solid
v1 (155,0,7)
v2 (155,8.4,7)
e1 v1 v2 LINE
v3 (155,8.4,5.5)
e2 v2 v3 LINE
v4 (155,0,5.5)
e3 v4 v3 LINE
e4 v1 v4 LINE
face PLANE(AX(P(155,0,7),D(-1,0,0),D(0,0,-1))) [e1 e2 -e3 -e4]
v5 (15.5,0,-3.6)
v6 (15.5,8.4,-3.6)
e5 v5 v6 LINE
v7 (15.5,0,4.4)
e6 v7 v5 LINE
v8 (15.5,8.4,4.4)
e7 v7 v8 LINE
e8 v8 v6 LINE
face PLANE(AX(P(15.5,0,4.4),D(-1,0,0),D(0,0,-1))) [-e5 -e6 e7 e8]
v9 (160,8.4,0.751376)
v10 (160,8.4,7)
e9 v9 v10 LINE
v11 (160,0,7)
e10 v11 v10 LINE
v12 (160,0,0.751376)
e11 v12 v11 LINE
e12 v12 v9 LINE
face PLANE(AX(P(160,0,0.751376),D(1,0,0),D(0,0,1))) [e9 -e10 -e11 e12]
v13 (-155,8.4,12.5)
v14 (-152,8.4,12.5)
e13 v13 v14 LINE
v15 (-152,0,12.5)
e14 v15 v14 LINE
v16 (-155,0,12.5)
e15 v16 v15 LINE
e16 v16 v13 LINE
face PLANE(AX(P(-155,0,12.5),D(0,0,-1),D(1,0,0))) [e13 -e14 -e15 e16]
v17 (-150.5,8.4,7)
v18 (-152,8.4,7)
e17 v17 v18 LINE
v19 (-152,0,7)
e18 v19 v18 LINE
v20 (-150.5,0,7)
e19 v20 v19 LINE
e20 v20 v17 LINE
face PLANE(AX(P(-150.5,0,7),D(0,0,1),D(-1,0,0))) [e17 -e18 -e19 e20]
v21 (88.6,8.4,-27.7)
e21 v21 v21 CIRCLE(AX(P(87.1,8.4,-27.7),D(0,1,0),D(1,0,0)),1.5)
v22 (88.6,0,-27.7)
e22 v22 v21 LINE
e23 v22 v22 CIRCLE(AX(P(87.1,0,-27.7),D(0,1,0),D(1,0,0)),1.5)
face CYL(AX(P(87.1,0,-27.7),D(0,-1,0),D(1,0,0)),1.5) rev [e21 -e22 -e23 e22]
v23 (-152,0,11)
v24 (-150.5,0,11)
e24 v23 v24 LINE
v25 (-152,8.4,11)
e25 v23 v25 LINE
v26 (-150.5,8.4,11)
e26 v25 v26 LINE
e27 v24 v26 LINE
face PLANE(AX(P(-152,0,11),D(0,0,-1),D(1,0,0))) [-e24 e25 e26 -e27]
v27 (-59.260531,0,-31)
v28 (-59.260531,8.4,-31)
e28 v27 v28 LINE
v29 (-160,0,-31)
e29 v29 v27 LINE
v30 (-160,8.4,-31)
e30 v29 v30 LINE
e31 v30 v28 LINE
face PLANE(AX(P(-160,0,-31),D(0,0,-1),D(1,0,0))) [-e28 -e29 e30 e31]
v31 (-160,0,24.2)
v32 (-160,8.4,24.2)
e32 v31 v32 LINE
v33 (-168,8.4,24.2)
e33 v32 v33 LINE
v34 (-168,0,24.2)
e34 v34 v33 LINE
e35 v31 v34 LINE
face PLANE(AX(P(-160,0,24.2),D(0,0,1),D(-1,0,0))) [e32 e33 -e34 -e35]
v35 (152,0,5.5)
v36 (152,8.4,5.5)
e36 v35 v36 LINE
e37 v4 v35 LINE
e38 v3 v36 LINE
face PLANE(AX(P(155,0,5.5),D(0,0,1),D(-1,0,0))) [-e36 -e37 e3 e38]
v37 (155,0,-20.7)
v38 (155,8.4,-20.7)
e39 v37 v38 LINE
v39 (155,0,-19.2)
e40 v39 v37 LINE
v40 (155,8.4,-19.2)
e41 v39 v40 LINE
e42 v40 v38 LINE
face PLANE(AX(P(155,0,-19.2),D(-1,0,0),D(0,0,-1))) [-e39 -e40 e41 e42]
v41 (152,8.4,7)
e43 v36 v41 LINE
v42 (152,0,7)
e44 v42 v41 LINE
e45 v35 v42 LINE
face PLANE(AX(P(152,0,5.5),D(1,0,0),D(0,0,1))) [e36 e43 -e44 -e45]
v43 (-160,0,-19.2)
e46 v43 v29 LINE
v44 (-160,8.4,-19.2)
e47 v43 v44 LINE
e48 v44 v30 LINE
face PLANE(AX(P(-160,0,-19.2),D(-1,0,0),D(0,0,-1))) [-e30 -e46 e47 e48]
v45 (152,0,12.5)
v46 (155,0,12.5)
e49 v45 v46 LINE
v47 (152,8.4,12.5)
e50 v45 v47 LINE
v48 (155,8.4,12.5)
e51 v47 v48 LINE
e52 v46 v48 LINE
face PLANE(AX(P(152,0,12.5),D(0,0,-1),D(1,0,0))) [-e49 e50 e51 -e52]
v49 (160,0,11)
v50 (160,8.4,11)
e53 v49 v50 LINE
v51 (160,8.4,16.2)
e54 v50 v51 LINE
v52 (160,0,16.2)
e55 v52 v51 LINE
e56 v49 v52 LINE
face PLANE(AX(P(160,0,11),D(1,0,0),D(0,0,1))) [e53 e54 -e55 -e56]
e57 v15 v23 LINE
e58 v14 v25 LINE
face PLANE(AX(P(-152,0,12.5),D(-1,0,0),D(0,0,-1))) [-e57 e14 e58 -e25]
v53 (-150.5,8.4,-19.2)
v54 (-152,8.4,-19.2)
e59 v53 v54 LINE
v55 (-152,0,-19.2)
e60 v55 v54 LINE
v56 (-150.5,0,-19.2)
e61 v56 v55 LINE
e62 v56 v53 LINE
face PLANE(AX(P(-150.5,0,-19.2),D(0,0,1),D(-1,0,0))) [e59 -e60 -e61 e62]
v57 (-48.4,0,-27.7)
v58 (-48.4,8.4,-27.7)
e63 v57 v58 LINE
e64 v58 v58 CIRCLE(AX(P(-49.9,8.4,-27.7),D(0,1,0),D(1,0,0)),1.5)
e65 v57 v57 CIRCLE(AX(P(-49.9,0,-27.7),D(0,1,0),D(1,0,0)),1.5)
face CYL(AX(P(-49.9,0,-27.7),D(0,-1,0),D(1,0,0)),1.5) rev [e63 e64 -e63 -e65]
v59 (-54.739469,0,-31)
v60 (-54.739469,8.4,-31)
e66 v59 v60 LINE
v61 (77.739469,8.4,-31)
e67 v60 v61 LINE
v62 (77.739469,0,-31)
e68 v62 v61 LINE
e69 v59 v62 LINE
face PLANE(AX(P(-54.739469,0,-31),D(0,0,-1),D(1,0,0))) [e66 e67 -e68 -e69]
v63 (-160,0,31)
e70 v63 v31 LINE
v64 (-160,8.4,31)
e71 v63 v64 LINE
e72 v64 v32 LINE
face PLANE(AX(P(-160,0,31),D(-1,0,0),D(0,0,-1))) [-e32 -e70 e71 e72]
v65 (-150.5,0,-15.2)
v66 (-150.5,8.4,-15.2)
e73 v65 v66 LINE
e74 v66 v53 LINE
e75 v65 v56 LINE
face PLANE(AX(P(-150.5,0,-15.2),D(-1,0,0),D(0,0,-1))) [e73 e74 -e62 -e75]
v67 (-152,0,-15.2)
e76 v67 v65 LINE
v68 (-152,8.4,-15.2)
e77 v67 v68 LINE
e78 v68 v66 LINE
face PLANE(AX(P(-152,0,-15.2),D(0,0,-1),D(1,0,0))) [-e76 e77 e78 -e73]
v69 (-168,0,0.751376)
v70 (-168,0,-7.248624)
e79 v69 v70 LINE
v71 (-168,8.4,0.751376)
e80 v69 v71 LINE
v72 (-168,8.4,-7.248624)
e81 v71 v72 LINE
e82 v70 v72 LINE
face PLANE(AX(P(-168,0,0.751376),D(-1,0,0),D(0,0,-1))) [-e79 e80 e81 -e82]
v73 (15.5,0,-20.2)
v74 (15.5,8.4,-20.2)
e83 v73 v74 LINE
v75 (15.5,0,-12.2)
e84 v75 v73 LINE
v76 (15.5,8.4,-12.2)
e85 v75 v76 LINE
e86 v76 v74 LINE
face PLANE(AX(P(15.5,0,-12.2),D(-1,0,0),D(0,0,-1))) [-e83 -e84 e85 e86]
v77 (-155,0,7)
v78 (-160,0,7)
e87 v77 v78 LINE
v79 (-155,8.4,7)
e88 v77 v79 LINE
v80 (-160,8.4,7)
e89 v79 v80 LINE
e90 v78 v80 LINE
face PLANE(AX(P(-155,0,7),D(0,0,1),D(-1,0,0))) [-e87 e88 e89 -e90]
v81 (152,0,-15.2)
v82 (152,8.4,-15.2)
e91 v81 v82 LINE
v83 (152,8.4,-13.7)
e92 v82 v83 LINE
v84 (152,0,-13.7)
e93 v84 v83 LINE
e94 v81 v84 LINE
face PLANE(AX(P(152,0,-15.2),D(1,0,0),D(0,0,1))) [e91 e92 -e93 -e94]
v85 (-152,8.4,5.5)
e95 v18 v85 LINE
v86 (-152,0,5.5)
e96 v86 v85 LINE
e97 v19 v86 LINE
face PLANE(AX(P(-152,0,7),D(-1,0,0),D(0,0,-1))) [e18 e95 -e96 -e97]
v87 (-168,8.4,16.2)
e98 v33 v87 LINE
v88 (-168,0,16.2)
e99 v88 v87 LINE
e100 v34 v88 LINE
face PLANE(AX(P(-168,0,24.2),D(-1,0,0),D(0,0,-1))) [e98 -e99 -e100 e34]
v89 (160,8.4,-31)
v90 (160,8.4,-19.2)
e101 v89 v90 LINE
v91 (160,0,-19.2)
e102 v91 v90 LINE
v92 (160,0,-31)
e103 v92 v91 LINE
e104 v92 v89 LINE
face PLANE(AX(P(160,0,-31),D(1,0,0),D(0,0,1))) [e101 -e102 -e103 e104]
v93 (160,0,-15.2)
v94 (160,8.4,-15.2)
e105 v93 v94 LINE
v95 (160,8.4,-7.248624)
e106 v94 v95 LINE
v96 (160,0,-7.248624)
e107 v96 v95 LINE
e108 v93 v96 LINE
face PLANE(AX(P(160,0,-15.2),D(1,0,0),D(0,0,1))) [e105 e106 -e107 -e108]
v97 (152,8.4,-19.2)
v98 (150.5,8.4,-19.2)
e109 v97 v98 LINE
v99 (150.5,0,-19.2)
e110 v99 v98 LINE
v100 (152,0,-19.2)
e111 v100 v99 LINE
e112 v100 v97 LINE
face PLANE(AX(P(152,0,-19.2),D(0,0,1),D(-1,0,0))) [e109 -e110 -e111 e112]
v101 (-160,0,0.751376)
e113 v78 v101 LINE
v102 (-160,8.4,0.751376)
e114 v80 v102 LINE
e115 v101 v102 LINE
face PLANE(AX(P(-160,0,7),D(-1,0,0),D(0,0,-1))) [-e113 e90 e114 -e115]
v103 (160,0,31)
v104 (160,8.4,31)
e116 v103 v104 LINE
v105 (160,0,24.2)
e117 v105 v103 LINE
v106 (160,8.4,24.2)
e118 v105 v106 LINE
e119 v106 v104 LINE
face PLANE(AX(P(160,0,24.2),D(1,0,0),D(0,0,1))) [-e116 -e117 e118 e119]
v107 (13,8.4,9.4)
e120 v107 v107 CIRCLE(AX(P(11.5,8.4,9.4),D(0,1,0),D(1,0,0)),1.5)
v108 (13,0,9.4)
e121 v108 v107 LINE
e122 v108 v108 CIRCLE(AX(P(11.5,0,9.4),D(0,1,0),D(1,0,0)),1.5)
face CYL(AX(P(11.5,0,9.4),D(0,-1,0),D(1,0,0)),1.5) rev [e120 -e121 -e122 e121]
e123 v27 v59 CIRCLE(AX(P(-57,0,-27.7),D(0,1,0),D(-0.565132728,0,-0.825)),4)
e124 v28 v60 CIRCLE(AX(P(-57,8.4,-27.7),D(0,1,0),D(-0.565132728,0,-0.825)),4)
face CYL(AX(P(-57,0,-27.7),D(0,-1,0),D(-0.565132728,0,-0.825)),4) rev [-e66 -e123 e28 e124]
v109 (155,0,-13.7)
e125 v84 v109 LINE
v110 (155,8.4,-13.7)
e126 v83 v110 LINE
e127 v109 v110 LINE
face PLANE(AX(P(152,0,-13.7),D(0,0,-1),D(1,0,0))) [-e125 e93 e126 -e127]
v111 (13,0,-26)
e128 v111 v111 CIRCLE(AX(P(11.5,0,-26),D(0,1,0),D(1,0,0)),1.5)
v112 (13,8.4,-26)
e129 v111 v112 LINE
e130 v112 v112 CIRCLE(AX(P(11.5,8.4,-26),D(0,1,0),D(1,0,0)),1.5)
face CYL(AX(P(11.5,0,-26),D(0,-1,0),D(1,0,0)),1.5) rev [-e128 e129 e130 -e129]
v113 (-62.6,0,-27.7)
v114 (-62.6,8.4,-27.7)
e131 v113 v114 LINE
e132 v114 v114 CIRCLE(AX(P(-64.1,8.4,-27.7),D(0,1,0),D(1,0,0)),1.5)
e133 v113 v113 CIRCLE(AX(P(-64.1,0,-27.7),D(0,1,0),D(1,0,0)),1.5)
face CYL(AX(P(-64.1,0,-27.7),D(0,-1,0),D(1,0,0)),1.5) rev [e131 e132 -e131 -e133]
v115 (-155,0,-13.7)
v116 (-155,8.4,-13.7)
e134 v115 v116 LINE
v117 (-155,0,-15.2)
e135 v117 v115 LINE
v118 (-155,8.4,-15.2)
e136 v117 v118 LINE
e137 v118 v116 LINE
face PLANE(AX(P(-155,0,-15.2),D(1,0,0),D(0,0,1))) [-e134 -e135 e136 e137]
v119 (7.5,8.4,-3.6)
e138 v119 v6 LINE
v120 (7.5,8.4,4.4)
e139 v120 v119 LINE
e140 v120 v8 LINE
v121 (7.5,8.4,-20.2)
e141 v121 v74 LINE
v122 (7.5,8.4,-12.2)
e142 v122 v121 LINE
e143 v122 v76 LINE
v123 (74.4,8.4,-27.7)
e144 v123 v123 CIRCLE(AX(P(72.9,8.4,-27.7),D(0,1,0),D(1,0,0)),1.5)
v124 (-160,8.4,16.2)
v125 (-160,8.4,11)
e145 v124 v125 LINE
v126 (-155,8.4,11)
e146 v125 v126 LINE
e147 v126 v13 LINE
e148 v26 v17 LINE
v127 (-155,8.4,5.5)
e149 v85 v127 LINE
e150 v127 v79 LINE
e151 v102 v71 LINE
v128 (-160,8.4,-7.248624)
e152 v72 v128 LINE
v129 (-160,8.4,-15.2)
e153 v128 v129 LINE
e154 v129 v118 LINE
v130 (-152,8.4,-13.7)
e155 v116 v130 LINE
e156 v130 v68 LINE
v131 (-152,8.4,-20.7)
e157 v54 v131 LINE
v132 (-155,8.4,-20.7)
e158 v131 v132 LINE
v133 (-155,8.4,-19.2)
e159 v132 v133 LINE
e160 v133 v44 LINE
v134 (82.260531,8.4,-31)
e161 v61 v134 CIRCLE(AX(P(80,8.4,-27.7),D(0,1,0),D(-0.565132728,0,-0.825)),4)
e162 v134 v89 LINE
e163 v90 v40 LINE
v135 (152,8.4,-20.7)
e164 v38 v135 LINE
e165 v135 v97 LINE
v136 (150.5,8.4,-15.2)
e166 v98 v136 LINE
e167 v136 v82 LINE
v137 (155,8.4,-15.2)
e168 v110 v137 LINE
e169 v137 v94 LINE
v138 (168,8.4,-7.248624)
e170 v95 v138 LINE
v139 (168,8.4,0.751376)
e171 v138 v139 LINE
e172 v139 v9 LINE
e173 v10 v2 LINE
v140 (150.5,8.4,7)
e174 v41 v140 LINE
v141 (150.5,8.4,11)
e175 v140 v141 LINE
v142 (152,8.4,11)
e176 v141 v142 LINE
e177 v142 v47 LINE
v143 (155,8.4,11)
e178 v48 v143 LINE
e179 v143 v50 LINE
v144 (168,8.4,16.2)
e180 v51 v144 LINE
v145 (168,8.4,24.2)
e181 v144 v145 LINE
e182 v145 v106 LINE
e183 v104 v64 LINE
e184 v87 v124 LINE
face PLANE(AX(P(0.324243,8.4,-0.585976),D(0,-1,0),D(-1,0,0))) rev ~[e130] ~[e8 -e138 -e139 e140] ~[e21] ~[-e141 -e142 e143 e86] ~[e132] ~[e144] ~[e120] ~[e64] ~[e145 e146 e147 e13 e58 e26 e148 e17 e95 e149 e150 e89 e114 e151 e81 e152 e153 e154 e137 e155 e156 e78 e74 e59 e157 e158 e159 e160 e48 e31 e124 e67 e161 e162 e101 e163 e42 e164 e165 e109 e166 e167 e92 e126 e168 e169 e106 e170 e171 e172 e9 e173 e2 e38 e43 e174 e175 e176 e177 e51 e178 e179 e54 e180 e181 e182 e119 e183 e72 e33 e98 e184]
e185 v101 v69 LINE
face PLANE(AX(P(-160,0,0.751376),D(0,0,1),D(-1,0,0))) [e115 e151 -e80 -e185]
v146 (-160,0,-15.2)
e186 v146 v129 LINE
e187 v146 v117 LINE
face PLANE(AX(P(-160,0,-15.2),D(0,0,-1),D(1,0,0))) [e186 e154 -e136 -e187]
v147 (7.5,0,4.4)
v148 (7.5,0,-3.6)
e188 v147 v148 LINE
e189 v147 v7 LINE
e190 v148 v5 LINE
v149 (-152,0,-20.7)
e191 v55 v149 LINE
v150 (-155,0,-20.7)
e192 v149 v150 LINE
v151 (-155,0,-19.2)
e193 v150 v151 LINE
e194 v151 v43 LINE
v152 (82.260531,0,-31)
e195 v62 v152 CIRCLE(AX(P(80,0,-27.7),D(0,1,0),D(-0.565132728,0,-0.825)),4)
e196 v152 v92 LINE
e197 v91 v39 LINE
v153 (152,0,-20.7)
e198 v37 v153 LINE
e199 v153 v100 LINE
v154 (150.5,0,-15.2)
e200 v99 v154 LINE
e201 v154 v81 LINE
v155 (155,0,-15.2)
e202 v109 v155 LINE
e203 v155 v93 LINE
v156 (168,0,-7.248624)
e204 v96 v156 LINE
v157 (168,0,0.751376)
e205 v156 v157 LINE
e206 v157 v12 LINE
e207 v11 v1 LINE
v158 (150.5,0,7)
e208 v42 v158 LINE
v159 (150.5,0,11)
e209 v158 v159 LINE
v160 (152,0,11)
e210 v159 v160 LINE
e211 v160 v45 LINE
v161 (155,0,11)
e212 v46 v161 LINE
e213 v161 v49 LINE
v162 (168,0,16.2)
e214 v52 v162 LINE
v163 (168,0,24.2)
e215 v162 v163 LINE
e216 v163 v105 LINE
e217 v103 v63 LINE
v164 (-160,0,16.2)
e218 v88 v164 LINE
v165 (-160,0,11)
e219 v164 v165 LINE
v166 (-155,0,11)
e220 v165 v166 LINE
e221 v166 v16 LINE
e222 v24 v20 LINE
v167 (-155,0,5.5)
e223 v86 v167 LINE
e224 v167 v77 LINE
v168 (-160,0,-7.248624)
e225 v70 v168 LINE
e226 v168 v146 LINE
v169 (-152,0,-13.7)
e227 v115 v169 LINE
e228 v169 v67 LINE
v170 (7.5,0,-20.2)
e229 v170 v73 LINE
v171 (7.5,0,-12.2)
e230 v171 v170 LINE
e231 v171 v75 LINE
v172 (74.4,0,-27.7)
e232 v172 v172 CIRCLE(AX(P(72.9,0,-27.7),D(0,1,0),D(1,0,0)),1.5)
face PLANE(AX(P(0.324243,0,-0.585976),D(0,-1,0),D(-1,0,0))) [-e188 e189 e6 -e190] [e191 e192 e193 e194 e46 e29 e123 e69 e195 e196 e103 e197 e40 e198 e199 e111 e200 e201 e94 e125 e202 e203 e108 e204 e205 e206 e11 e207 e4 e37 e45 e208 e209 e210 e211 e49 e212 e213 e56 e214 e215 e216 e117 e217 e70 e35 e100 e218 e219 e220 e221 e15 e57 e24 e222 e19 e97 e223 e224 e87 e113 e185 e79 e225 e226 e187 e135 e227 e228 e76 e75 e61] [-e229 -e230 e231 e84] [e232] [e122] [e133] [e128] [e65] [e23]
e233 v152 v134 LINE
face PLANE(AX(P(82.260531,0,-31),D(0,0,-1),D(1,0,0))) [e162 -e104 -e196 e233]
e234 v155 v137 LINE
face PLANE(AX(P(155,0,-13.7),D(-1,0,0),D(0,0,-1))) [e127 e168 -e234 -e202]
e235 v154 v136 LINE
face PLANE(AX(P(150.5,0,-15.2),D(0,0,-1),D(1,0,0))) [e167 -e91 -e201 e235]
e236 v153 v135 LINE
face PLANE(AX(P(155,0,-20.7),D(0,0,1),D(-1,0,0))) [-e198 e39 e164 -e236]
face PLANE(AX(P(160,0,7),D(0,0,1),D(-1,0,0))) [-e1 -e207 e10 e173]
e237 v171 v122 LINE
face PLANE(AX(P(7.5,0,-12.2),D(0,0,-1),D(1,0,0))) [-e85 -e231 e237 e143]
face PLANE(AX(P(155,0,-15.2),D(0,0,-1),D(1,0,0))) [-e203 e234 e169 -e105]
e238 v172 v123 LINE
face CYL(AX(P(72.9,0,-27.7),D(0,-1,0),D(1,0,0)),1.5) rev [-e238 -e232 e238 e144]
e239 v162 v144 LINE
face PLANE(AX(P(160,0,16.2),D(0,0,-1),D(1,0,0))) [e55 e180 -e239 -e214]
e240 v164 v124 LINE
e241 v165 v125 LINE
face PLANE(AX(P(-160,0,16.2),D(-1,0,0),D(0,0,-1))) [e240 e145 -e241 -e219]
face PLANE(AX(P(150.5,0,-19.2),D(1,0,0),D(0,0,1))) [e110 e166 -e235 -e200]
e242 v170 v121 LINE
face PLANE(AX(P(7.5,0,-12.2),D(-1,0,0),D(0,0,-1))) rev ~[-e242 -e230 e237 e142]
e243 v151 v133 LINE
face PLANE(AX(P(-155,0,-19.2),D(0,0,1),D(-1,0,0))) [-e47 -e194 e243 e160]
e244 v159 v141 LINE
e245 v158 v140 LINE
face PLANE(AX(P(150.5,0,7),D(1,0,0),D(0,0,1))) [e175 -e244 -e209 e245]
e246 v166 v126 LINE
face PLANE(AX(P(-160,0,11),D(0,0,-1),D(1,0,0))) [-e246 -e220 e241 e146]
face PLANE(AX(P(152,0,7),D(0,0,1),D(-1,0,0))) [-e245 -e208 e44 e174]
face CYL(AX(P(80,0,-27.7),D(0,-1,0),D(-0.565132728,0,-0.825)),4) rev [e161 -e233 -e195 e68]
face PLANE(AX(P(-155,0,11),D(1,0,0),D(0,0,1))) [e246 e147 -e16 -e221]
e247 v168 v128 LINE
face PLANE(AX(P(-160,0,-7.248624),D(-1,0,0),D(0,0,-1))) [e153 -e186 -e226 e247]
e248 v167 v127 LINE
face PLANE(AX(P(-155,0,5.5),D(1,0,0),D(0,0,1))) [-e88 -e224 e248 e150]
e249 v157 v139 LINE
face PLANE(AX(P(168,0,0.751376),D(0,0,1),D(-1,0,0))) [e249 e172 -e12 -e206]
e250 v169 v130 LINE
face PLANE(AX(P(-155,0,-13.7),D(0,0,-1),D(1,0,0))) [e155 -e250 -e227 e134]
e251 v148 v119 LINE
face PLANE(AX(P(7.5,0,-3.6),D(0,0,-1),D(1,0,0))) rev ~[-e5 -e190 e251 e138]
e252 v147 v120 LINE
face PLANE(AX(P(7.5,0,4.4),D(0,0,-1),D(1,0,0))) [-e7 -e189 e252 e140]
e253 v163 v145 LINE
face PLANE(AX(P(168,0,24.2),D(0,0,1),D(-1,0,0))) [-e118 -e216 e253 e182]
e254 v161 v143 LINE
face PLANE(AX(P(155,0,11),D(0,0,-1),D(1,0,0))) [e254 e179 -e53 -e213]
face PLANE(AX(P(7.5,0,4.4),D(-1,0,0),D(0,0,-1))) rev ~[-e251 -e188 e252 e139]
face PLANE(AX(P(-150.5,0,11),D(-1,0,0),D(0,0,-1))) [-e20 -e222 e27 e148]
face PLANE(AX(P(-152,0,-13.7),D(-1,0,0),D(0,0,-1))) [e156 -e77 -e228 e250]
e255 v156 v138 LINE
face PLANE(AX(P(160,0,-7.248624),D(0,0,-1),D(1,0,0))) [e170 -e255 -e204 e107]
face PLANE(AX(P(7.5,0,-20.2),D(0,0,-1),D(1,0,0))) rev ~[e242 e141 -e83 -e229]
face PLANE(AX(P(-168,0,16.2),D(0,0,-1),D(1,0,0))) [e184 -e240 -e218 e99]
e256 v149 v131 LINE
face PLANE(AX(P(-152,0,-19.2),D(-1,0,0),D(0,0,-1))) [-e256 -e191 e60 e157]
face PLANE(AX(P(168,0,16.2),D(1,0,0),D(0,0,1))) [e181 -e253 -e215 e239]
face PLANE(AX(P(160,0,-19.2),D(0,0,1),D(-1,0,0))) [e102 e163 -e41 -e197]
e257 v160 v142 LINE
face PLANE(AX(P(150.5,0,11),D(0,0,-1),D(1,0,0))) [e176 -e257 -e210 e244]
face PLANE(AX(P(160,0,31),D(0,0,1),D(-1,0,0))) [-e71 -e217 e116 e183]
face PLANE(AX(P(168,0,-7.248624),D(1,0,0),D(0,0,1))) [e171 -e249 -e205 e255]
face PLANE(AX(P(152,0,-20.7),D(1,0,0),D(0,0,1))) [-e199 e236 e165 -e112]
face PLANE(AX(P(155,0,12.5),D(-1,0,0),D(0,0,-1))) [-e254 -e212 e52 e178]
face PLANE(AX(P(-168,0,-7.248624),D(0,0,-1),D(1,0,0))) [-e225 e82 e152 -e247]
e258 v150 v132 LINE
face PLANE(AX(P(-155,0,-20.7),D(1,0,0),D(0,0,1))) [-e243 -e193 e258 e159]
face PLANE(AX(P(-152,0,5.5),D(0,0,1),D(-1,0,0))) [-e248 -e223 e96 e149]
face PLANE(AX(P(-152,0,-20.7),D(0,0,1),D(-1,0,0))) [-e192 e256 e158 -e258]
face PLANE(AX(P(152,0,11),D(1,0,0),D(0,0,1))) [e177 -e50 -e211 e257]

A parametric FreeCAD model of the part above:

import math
import FreeCAD as App
import Part
import Sketcher

V = App.Vector


def add_polygon(sketch, points):
    """Adds a closed chain of lines whose ends are joined by coincident constraints."""
    first, n = sketch.GeometryCount, len(points)
    for a, b in zip(points, points[1:] + points[:1]):
        sketch.addGeometry(Part.LineSegment(App.Vector(*a, 0), App.Vector(*b, 0)), False)
    for i in range(n):
        sketch.addConstraint(Sketcher.Constraint("Coincident", first + i, 2, first + (i + 1) % n, 1))

doc = App.newDocument("Part")
body = doc.addObject("PartDesign::Body", "Body")

# Sketch on XZ plane
sketch1 = body.newObject("Sketcher::SketchObject", "Sketch")
sketch1.AttachmentSupport = (doc.getObject("XZ_Plane"), [""])
sketch1.MapMode = "FlatFace"
sketch1.addGeometry(Part.LineSegment(V(-59.3, -31, 0), V(-160, -31, 0)), False)  # 0
sketch1.addGeometry(Part.LineSegment(V(-160, -31, 0), V(-160, -19.2, 0)), False)  # 1
sketch1.addGeometry(Part.LineSegment(V(-160, -19.2, 0), V(-155, -19.2, 0)), False)  # 2
sketch1.addGeometry(Part.LineSegment(V(-155, -19.2, 0), V(-155, -20.7, 0)), False)  # 3
sketch1.addGeometry(Part.LineSegment(V(-155, -20.7, 0), V(-152, -20.7, 0)), False)  # 4
sketch1.addGeometry(Part.LineSegment(V(-152, -20.7, 0), V(-152, -19.2, 0)), False)  # 5
sketch1.addGeometry(Part.LineSegment(V(-152, -19.2, 0), V(-150.5, -19.2, 0)), False)  # 6
sketch1.addGeometry(Part.LineSegment(V(-150.5, -19.2, 0), V(-150.5, -15.2, 0)), False)  # 7
sketch1.addGeometry(Part.LineSegment(V(-150.5, -15.2, 0), V(-152, -15.2, 0)), False)  # 8
sketch1.addGeometry(Part.LineSegment(V(-152, -15.2, 0), V(-152, -13.7, 0)), False)  # 9
sketch1.addGeometry(Part.LineSegment(V(-152, -13.7, 0), V(-155, -13.7, 0)), False)  # 10
sketch1.addGeometry(Part.LineSegment(V(-155, -13.7, 0), V(-155, -15.2, 0)), False)  # 11
sketch1.addGeometry(Part.LineSegment(V(-155, -15.2, 0), V(-160, -15.2, 0)), False)  # 12
sketch1.addGeometry(Part.LineSegment(V(-160, -15.2, 0), V(-160, -7.2, 0)), False)  # 13
sketch1.addGeometry(Part.LineSegment(V(-160, -7.2, 0), V(-168, -7.2, 0)), False)  # 14
sketch1.addGeometry(Part.LineSegment(V(-168, -7.2, 0), V(-168, 0.8, 0)), False)  # 15
sketch1.addGeometry(Part.LineSegment(V(-168, 0.8, 0), V(-160, 0.8, 0)), False)  # 16
sketch1.addGeometry(Part.LineSegment(V(-160, 0.8, 0), V(-160, 7, 0)), False)  # 17
sketch1.addGeometry(Part.LineSegment(V(-160, 7, 0), V(-155, 7, 0)), False)  # 18
sketch1.addGeometry(Part.LineSegment(V(-155, 7, 0), V(-155, 5.5, 0)), False)  # 19
sketch1.addGeometry(Part.LineSegment(V(-155, 5.5, 0), V(-152, 5.5, 0)), False)  # 20
sketch1.addGeometry(Part.LineSegment(V(-152, 5.5, 0), V(-152, 7, 0)), False)  # 21
sketch1.addGeometry(Part.LineSegment(V(-152, 7, 0), V(-150.5, 7, 0)), False)  # 22
sketch1.addGeometry(Part.LineSegment(V(-150.5, 7, 0), V(-150.5, 11, 0)), False)  # 23
sketch1.addGeometry(Part.LineSegment(V(-150.5, 11, 0), V(-152, 11, 0)), False)  # 24
sketch1.addGeometry(Part.LineSegment(V(-152, 11, 0), V(-152, 12.5, 0)), False)  # 25
sketch1.addGeometry(Part.LineSegment(V(-152, 12.5, 0), V(-155, 12.5, 0)), False)  # 26
sketch1.addGeometry(Part.LineSegment(V(-155, 12.5, 0), V(-155, 11, 0)), False)  # 27
sketch1.addGeometry(Part.LineSegment(V(-155, 11, 0), V(-160, 11, 0)), False)  # 28
sketch1.addGeometry(Part.LineSegment(V(-160, 11, 0), V(-160, 16.2, 0)), False)  # 29
sketch1.addGeometry(Part.LineSegment(V(-160, 16.2, 0), V(-168, 16.2, 0)), False)  # 30
sketch1.addGeometry(Part.LineSegment(V(-168, 16.2, 0), V(-168, 24.2, 0)), False)  # 31
sketch1.addGeometry(Part.LineSegment(V(-168, 24.2, 0), V(-160, 24.2, 0)), False)  # 32
sketch1.addGeometry(Part.LineSegment(V(-160, 24.2, 0), V(-160, 31, 0)), False)  # 33
sketch1.addGeometry(Part.LineSegment(V(-160, 31, 0), V(160, 31, 0)), False)  # 34
sketch1.addGeometry(Part.LineSegment(V(160, 31, 0), V(160, 24.2, 0)), False)  # 35
sketch1.addGeometry(Part.LineSegment(V(160, 24.2, 0), V(168, 24.2, 0)), False)  # 36
sketch1.addGeometry(Part.LineSegment(V(168, 24.2, 0), V(168, 16.2, 0)), False)  # 37
sketch1.addGeometry(Part.LineSegment(V(168, 16.2, 0), V(160, 16.2, 0)), False)  # 38
sketch1.addGeometry(Part.LineSegment(V(160, 16.2, 0), V(160, 11, 0)), False)  # 39
sketch1.addGeometry(Part.LineSegment(V(160, 11, 0), V(155, 11, 0)), False)  # 40
sketch1.addGeometry(Part.LineSegment(V(155, 11, 0), V(155, 12.5, 0)), False)  # 41
sketch1.addGeometry(Part.LineSegment(V(155, 12.5, 0), V(152, 12.5, 0)), False)  # 42
sketch1.addGeometry(Part.LineSegment(V(152, 12.5, 0), V(152, 11, 0)), False)  # 43
sketch1.addGeometry(Part.LineSegment(V(152, 11, 0), V(150.5, 11, 0)), False)  # 44
sketch1.addGeometry(Part.LineSegment(V(150.5, 11, 0), V(150.5, 7, 0)), False)  # 45
sketch1.addGeometry(Part.LineSegment(V(150.5, 7, 0), V(152, 7, 0)), False)  # 46
sketch1.addGeometry(Part.LineSegment(V(152, 7, 0), V(152, 5.5, 0)), False)  # 47
sketch1.addGeometry(Part.LineSegment(V(152, 5.5, 0), V(155, 5.5, 0)), False)  # 48
sketch1.addGeometry(Part.LineSegment(V(155, 5.5, 0), V(155, 7, 0)), False)  # 49
sketch1.addGeometry(Part.LineSegment(V(155, 7, 0), V(160, 7, 0)), False)  # 50
sketch1.addGeometry(Part.LineSegment(V(160, 7, 0), V(160, 0.8, 0)), False)  # 51
sketch1.addGeometry(Part.LineSegment(V(160, 0.8, 0), V(168, 0.8, 0)), False)  # 52
sketch1.addGeometry(Part.LineSegment(V(168, 0.8, 0), V(168, -7.2, 0)), False)  # 53
sketch1.addGeometry(Part.LineSegment(V(168, -7.2, 0), V(160, -7.2, 0)), False)  # 54
sketch1.addGeometry(Part.LineSegment(V(160, -7.2, 0), V(160, -15.2, 0)), False)  # 55
sketch1.addGeometry(Part.LineSegment(V(160, -15.2, 0), V(155, -15.2, 0)), False)  # 56
sketch1.addGeometry(Part.LineSegment(V(155, -15.2, 0), V(155, -13.7, 0)), False)  # 57
sketch1.addGeometry(Part.LineSegment(V(155, -13.7, 0), V(152, -13.7, 0)), False)  # 58
sketch1.addGeometry(Part.LineSegment(V(152, -13.7, 0), V(152, -15.2, 0)), False)  # 59
sketch1.addGeometry(Part.LineSegment(V(152, -15.2, 0), V(150.5, -15.2, 0)), False)  # 60
sketch1.addGeometry(Part.LineSegment(V(150.5, -15.2, 0), V(150.5, -19.2, 0)), False)  # 61
sketch1.addGeometry(Part.LineSegment(V(150.5, -19.2, 0), V(152, -19.2, 0)), False)  # 62
sketch1.addGeometry(Part.LineSegment(V(152, -19.2, 0), V(152, -20.7, 0)), False)  # 63
sketch1.addGeometry(Part.LineSegment(V(152, -20.7, 0), V(155, -20.7, 0)), False)  # 64
sketch1.addGeometry(Part.LineSegment(V(155, -20.7, 0), V(155, -19.2, 0)), False)  # 65
sketch1.addGeometry(Part.LineSegment(V(155, -19.2, 0), V(160, -19.2, 0)), False)  # 66
sketch1.addGeometry(Part.LineSegment(V(160, -19.2, 0), V(160, -31, 0)), False)  # 67
sketch1.addGeometry(Part.LineSegment(V(160, -31, 0), V(82.3, -31, 0)), False)  # 68
sketch1.addGeometry(Part.ArcOfCircle(Part.Circle(V(80, -27.7, 0), V(0, 0, 1), 4), math.radians(-56), math.radians(236)), False)  # 69
sketch1.addGeometry(Part.LineSegment(V(77.7, -31, 0), V(-54.7, -31, 0)), False)  # 70
sketch1.addGeometry(Part.ArcOfCircle(Part.Circle(V(-57, -27.7, 0), V(0, 0, 1), 4), math.radians(-56), math.radians(236)), False)  # 71
sketch1.addGeometry(Part.Circle(V(11.5, 9.4, 0), V(0, 0, 1), 1.5), False)  # 72
add_polygon(sketch1, [(7.5, 4.4), (7.5, -3.6), (15.5, -3.6), (15.5, 4.4)])  # lines 73-76
sketch1.addGeometry(Part.Circle(V(87.1, -27.7, 0), V(0, 0, 1), 1.5), False)  # 77
sketch1.addGeometry(Part.Circle(V(72.9, -27.7, 0), V(0, 0, 1), 1.5), False)  # 78
add_polygon(sketch1, [(7.5, -12.2), (7.5, -20.2), (15.5, -20.2), (15.5, -12.2)])  # lines 79-82
sketch1.addGeometry(Part.Circle(V(11.5, -26, 0), V(0, 0, 1), 1.5), False)  # 83
sketch1.addGeometry(Part.Circle(V(-49.9, -27.7, 0), V(0, 0, 1), 1.5), False)  # 84
sketch1.addGeometry(Part.Circle(V(-64.1, -27.7, 0), V(0, 0, 1), 1.5), False)  # 85
sketch1.addConstraint(Sketcher.Constraint("Coincident", 0, 2, 1, 1))
sketch1.addConstraint(Sketcher.Constraint("Coincident", 1, 2, 2, 1))
sketch1.addConstraint(Sketcher.Constraint("Coincident", 2, 2, 3, 1))
sketch1.addConstraint(Sketcher.Constraint("Coincident", 3, 2, 4, 1))
sketch1.addConstraint(Sketcher.Constraint("Coincident", 4, 2, 5, 1))
sketch1.addConstraint(Sketcher.Constraint("Coincident", 5, 2, 6, 1))
sketch1.addConstraint(Sketcher.Constraint("Coincident", 6, 2, 7, 1))
sketch1.addConstraint(Sketcher.Constraint("Coincident", 7, 2, 8, 1))
sketch1.addConstraint(Sketcher.Constraint("Coincident", 8, 2, 9, 1))
sketch1.addConstraint(Sketcher.Constraint("Coincident", 9, 2, 10, 1))
sketch1.addConstraint(Sketcher.Constraint("Coincident", 10, 2, 11, 1))
sketch1.addConstraint(Sketcher.Constraint("Coincident", 11, 2, 12, 1))
sketch1.addConstraint(Sketcher.Constraint("Coincident", 12, 2, 13, 1))
sketch1.addConstraint(Sketcher.Constraint("Coincident", 13, 2, 14, 1))
sketch1.addConstraint(Sketcher.Constraint("Coincident", 14, 2, 15, 1))
sketch1.addConstraint(Sketcher.Constraint("Coincident", 15, 2, 16, 1))
sketch1.addConstraint(Sketcher.Constraint("Coincident", 16, 2, 17, 1))
sketch1.addConstraint(Sketcher.Constraint("Coincident", 17, 2, 18, 1))
sketch1.addConstraint(Sketcher.Constraint("Coincident", 18, 2, 19, 1))
sketch1.addConstraint(Sketcher.Constraint("Coincident", 19, 2, 20, 1))
sketch1.addConstraint(Sketcher.Constraint("Coincident", 20, 2, 21, 1))
sketch1.addConstraint(Sketcher.Constraint("Coincident", 21, 2, 22, 1))
sketch1.addConstraint(Sketcher.Constraint("Coincident", 22, 2, 23, 1))
sketch1.addConstraint(Sketcher.Constraint("Coincident", 23, 2, 24, 1))
sketch1.addConstraint(Sketcher.Constraint("Coincident", 24, 2, 25, 1))
sketch1.addConstraint(Sketcher.Constraint("Coincident", 25, 2, 26, 1))
sketch1.addConstraint(Sketcher.Constraint("Coincident", 26, 2, 27, 1))
sketch1.addConstraint(Sketcher.Constraint("Coincident", 27, 2, 28, 1))
sketch1.addConstraint(Sketcher.Constraint("Coincident", 28, 2, 29, 1))
sketch1.addConstraint(Sketcher.Constraint("Coincident", 29, 2, 30, 1))
sketch1.addConstraint(Sketcher.Constraint("Coincident", 30, 2, 31, 1))
sketch1.addConstraint(Sketcher.Constraint("Coincident", 31, 2, 32, 1))
sketch1.addConstraint(Sketcher.Constraint("Coincident", 32, 2, 33, 1))
sketch1.addConstraint(Sketcher.Constraint("Coincident", 33, 2, 34, 1))
sketch1.addConstraint(Sketcher.Constraint("Coincident", 34, 2, 35, 1))
sketch1.addConstraint(Sketcher.Constraint("Coincident", 35, 2, 36, 1))
sketch1.addConstraint(Sketcher.Constraint("Coincident", 36, 2, 37, 1))
sketch1.addConstraint(Sketcher.Constraint("Coincident", 37, 2, 38, 1))
sketch1.addConstraint(Sketcher.Constraint("Coincident", 38, 2, 39, 1))
sketch1.addConstraint(Sketcher.Constraint("Coincident", 39, 2, 40, 1))
sketch1.addConstraint(Sketcher.Constraint("Coincident", 40, 2, 41, 1))
sketch1.addConstraint(Sketcher.Constraint("Coincident", 41, 2, 42, 1))
sketch1.addConstraint(Sketcher.Constraint("Coincident", 42, 2, 43, 1))
sketch1.addConstraint(Sketcher.Constraint("Coincident", 43, 2, 44, 1))
sketch1.addConstraint(Sketcher.Constraint("Coincident", 44, 2, 45, 1))
sketch1.addConstraint(Sketcher.Constraint("Coincident", 45, 2, 46, 1))
sketch1.addConstraint(Sketcher.Constraint("Coincident", 46, 2, 47, 1))
sketch1.addConstraint(Sketcher.Constraint("Coincident", 47, 2, 48, 1))
sketch1.addConstraint(Sketcher.Constraint("Coincident", 48, 2, 49, 1))
sketch1.addConstraint(Sketcher.Constraint("Coincident", 49, 2, 50, 1))
sketch1.addConstraint(Sketcher.Constraint("Coincident", 50, 2, 51, 1))
sketch1.addConstraint(Sketcher.Constraint("Coincident", 51, 2, 52, 1))
sketch1.addConstraint(Sketcher.Constraint("Coincident", 52, 2, 53, 1))
sketch1.addConstraint(Sketcher.Constraint("Coincident", 53, 2, 54, 1))
sketch1.addConstraint(Sketcher.Constraint("Coincident", 54, 2, 55, 1))
sketch1.addConstraint(Sketcher.Constraint("Coincident", 55, 2, 56, 1))
sketch1.addConstraint(Sketcher.Constraint("Coincident", 56, 2, 57, 1))
sketch1.addConstraint(Sketcher.Constraint("Coincident", 57, 2, 58, 1))
sketch1.addConstraint(Sketcher.Constraint("Coincident", 58, 2, 59, 1))
sketch1.addConstraint(Sketcher.Constraint("Coincident", 59, 2, 60, 1))
sketch1.addConstraint(Sketcher.Constraint("Coincident", 60, 2, 61, 1))
sketch1.addConstraint(Sketcher.Constraint("Coincident", 61, 2, 62, 1))
sketch1.addConstraint(Sketcher.Constraint("Coincident", 62, 2, 63, 1))
sketch1.addConstraint(Sketcher.Constraint("Coincident", 63, 2, 64, 1))
sketch1.addConstraint(Sketcher.Constraint("Coincident", 64, 2, 65, 1))
sketch1.addConstraint(Sketcher.Constraint("Coincident", 65, 2, 66, 1))
sketch1.addConstraint(Sketcher.Constraint("Coincident", 66, 2, 67, 1))
sketch1.addConstraint(Sketcher.Constraint("Coincident", 67, 2, 68, 1))
sketch1.addConstraint(Sketcher.Constraint("Coincident", 68, 2, 69, 1))
sketch1.addConstraint(Sketcher.Constraint("Coincident", 69, 2, 70, 1))
sketch1.addConstraint(Sketcher.Constraint("Coincident", 70, 2, 71, 1))
sketch1.addConstraint(Sketcher.Constraint("Coincident", 71, 2, 0, 1))
sketch1.addConstraint(Sketcher.Constraint("Horizontal", 0))
sketch1.addConstraint(Sketcher.Constraint("Vertical", 1))
sketch1.addConstraint(Sketcher.Constraint("Horizontal", 2))
sketch1.addConstraint(Sketcher.Constraint("Vertical", 3))
sketch1.addConstraint(Sketcher.Constraint("Horizontal", 4))
sketch1.addConstraint(Sketcher.Constraint("Vertical", 5))
sketch1.addConstraint(Sketcher.Constraint("Horizontal", 6))
sketch1.addConstraint(Sketcher.Constraint("Vertical", 7))
sketch1.addConstraint(Sketcher.Constraint("Horizontal", 8))
sketch1.addConstraint(Sketcher.Constraint("Vertical", 9))
sketch1.addConstraint(Sketcher.Constraint("Horizontal", 10))
sketch1.addConstraint(Sketcher.Constraint("Vertical", 11))
sketch1.addConstraint(Sketcher.Constraint("Horizontal", 12))
sketch1.addConstraint(Sketcher.Constraint("Vertical", 13))
sketch1.addConstraint(Sketcher.Constraint("Horizontal", 14))
sketch1.addConstraint(Sketcher.Constraint("Vertical", 15))
sketch1.addConstraint(Sketcher.Constraint("Horizontal", 16))
sketch1.addConstraint(Sketcher.Constraint("Vertical", 17))
sketch1.addConstraint(Sketcher.Constraint("Horizontal", 18))
sketch1.addConstraint(Sketcher.Constraint("Vertical", 19))
sketch1.addConstraint(Sketcher.Constraint("Horizontal", 20))
sketch1.addConstraint(Sketcher.Constraint("Vertical", 21))
sketch1.addConstraint(Sketcher.Constraint("Horizontal", 22))
sketch1.addConstraint(Sketcher.Constraint("Vertical", 23))
sketch1.addConstraint(Sketcher.Constraint("Horizontal", 24))
sketch1.addConstraint(Sketcher.Constraint("Vertical", 25))
sketch1.addConstraint(Sketcher.Constraint("Horizontal", 26))
sketch1.addConstraint(Sketcher.Constraint("Vertical", 27))
sketch1.addConstraint(Sketcher.Constraint("Horizontal", 28))
sketch1.addConstraint(Sketcher.Constraint("Vertical", 29))
sketch1.addConstraint(Sketcher.Constraint("Horizontal", 30))
sketch1.addConstraint(Sketcher.Constraint("Vertical", 31))
sketch1.addConstraint(Sketcher.Constraint("Horizontal", 32))
sketch1.addConstraint(Sketcher.Constraint("Vertical", 33))
sketch1.addConstraint(Sketcher.Constraint("Horizontal", 34))
sketch1.addConstraint(Sketcher.Constraint("Vertical", 35))
sketch1.addConstraint(Sketcher.Constraint("Horizontal", 36))
sketch1.addConstraint(Sketcher.Constraint("Vertical", 37))
sketch1.addConstraint(Sketcher.Constraint("Horizontal", 38))
sketch1.addConstraint(Sketcher.Constraint("Vertical", 39))
sketch1.addConstraint(Sketcher.Constraint("Horizontal", 40))
sketch1.addConstraint(Sketcher.Constraint("Vertical", 41))
sketch1.addConstraint(Sketcher.Constraint("Horizontal", 42))
sketch1.addConstraint(Sketcher.Constraint("Vertical", 43))
sketch1.addConstraint(Sketcher.Constraint("Horizontal", 44))
sketch1.addConstraint(Sketcher.Constraint("Vertical", 45))
sketch1.addConstraint(Sketcher.Constraint("Horizontal", 46))
sketch1.addConstraint(Sketcher.Constraint("Vertical", 47))
sketch1.addConstraint(Sketcher.Constraint("Horizontal", 48))
sketch1.addConstraint(Sketcher.Constraint("Vertical", 49))
sketch1.addConstraint(Sketcher.Constraint("Horizontal", 50))
sketch1.addConstraint(Sketcher.Constraint("Vertical", 51))
sketch1.addConstraint(Sketcher.Constraint("Horizontal", 52))
sketch1.addConstraint(Sketcher.Constraint("Vertical", 53))
sketch1.addConstraint(Sketcher.Constraint("Horizontal", 54))
sketch1.addConstraint(Sketcher.Constraint("Vertical", 55))
sketch1.addConstraint(Sketcher.Constraint("Horizontal", 56))
sketch1.addConstraint(Sketcher.Constraint("Vertical", 57))
sketch1.addConstraint(Sketcher.Constraint("Horizontal", 58))
sketch1.addConstraint(Sketcher.Constraint("Vertical", 59))
sketch1.addConstraint(Sketcher.Constraint("Horizontal", 60))
sketch1.addConstraint(Sketcher.Constraint("Vertical", 61))
sketch1.addConstraint(Sketcher.Constraint("Horizontal", 62))
sketch1.addConstraint(Sketcher.Constraint("Vertical", 63))
sketch1.addConstraint(Sketcher.Constraint("Horizontal", 64))
sketch1.addConstraint(Sketcher.Constraint("Vertical", 65))
sketch1.addConstraint(Sketcher.Constraint("Horizontal", 66))
sketch1.addConstraint(Sketcher.Constraint("Vertical", 67))
sketch1.addConstraint(Sketcher.Constraint("Horizontal", 68))
sketch1.addConstraint(Sketcher.Constraint("Horizontal", 70))
sketch1.addConstraint(Sketcher.Constraint("Vertical", 73))
sketch1.addConstraint(Sketcher.Constraint("Horizontal", 74))
sketch1.addConstraint(Sketcher.Constraint("Vertical", 75))
sketch1.addConstraint(Sketcher.Constraint("Horizontal", 76))
sketch1.addConstraint(Sketcher.Constraint("Vertical", 79))
sketch1.addConstraint(Sketcher.Constraint("Horizontal", 80))
sketch1.addConstraint(Sketcher.Constraint("Vertical", 81))
sketch1.addConstraint(Sketcher.Constraint("Horizontal", 82))
sketch1.addConstraint(Sketcher.Constraint("Equal", 69, 71))
sketch1.addConstraint(Sketcher.Constraint("Equal", 72, 77))
sketch1.addConstraint(Sketcher.Constraint("Equal", 77, 78))
sketch1.addConstraint(Sketcher.Constraint("Equal", 78, 83))
sketch1.addConstraint(Sketcher.Constraint("Equal", 83, 84))
sketch1.addConstraint(Sketcher.Constraint("Equal", 84, 85))
sketch1.addConstraint(Sketcher.Constraint("Symmetric", 0, 2, 34, 2, -1, 1))
sketch1.addConstraint(Sketcher.Constraint("Symmetric", 33, 2, 67, 2, -1, 1))
sketch1.addConstraint(Sketcher.Constraint("Symmetric", 32, 2, 35, 2, -2))
sketch1.addConstraint(Sketcher.Constraint("Symmetric", 30, 2, 37, 2, -2))
sketch1.addConstraint(Sketcher.Constraint("Symmetric", 28, 2, 39, 2, -2))
sketch1.addConstraint(Sketcher.Constraint("Symmetric", 26, 2, 41, 2, -2))
sketch1.addConstraint(Sketcher.Constraint("Symmetric", 24, 2, 43, 2, -2))
sketch1.addConstraint(Sketcher.Constraint("Symmetric", 22, 2, 45, 2, -2))
sketch1.addConstraint(Sketcher.Constraint("Symmetric", 20, 2, 47, 2, -2))
sketch1.addConstraint(Sketcher.Constraint("Symmetric", 18, 2, 49, 2, -2))
sketch1.addConstraint(Sketcher.Constraint("Symmetric", 16, 2, 51, 2, -2))
sketch1.addConstraint(Sketcher.Constraint("Symmetric", 14, 2, 53, 2, -2))
sketch1.addConstraint(Sketcher.Constraint("Symmetric", 12, 2, 55, 2, -2))
sketch1.addConstraint(Sketcher.Constraint("Symmetric", 10, 2, 57, 2, -2))
sketch1.addConstraint(Sketcher.Constraint("Symmetric", 8, 2, 59, 2, -2))
sketch1.addConstraint(Sketcher.Constraint("Symmetric", 6, 2, 61, 2, -2))
sketch1.addConstraint(Sketcher.Constraint("Symmetric", 4, 2, 63, 2, -2))
sketch1.addConstraint(Sketcher.Constraint("Symmetric", 2, 2, 65, 2, -2))
sketch1.addConstraint(Sketcher.Constraint("Horizontal", 69, 3, 71, 3))
sketch1.addConstraint(Sketcher.Constraint("Horizontal", 71, 3, 77, 3))
sketch1.addConstraint(Sketcher.Constraint("Horizontal", 77, 3, 78, 3))
sketch1.addConstraint(Sketcher.Constraint("Horizontal", 78, 3, 84, 3))
sketch1.addConstraint(Sketcher.Constraint("Horizontal", 84, 3, 85, 3))
sketch1.addConstraint(Sketcher.Constraint("Horizontal", 2, 2, 5, 2))
sketch1.addConstraint(Sketcher.Constraint("Horizontal", 8, 2, 11, 2))
sketch1.addConstraint(Sketcher.Constraint("Horizontal", 18, 2, 21, 2))
sketch1.addConstraint(Sketcher.Constraint("Horizontal", 24, 2, 27, 2))
sketch1.addConstraint(Sketcher.Constraint("Horizontal", 68, 2, 69, 2))
sketch1.addConstraint(Sketcher.Constraint("Vertical", 72, 3, 83, 3))
sketch1.addConstraint(Sketcher.Constraint("Vertical", 5, 2, 8, 2))
sketch1.addConstraint(Sketcher.Constraint("Vertical", 3, 2, 10, 2))
sketch1.addConstraint(Sketcher.Constraint("Vertical", 1, 2, 12, 2))
sketch1.addConstraint(Sketcher.Constraint("Vertical", 13, 2, 16, 2))
sketch1.addConstraint(Sketcher.Constraint("Vertical", 11, 2, 18, 2))
sketch1.addConstraint(Sketcher.Constraint("Vertical", 9, 2, 20, 2))
sketch1.addConstraint(Sketcher.Constraint("Vertical", 7, 2, 22, 2))
sketch1.addConstraint(Sketcher.Constraint("Vertical", 21, 2, 24, 2))
sketch1.addConstraint(Sketcher.Constraint("Vertical", 19, 2, 26, 2))
sketch1.addConstraint(Sketcher.Constraint("Vertical", 17, 2, 28, 2))
sketch1.addConstraint(Sketcher.Constraint("Vertical", 15, 2, 30, 2))
sketch1.addConstraint(Sketcher.Constraint("Vertical", 76, 2, 79, 2))
sketch1.addConstraint(Sketcher.Constraint("Vertical", 75, 2, 80, 2))
sketch1.addConstraint(Sketcher.Constraint("Equal", 54, 74))
sketch1.addConstraint(Sketcher.Constraint("Equal", 62, 3))
sketch1.addConstraint(Sketcher.Constraint("Equal", 5, 9))
sketch1.addConstraint(Sketcher.Constraint("Equal", 82, 15))
sketch1.addConstraint(Sketcher.Constraint("Equal", 11, 19))
sketch1.addConstraint(Sketcher.Constraint("Equal", 7, 23))
sketch1.addConstraint(Sketcher.Constraint("Equal", 21, 25))
sketch1.addConstraint(Sketcher.Constraint("Equal", 15, 31))
sketch1.addConstraint(Sketcher.Constraint("Equal", 53, 73))
sketch1.addConstraint(Sketcher.Constraint("Equal", 75, 79))
sketch1.addConstraint(Sketcher.Constraint("Diameter", 72, 3.0))
sketch1.addConstraint(Sketcher.Constraint("Radius", 69, 4.0))
sketch1.addConstraint(Sketcher.Constraint("DistanceX", 2, 1, 2, 2, 5.0))
sketch1.addConstraint(Sketcher.Constraint("DistanceX", 4, 1, 4, 2, 3.0))
sketch1.addConstraint(Sketcher.Constraint("DistanceX", 14, 2, 14, 1, 8.0))
sketch1.addConstraint(Sketcher.Constraint("DistanceX", 34, 1, 34, 2, 320.0))
sketch1.addConstraint(Sketcher.Constraint("DistanceY", 7, 1, 7, 2, 4.0))
sketch1.addConstraint(Sketcher.Constraint("DistanceX", 6, 1, 6, 2, 1.5))
sketch1.addConstraint(Sketcher.Constraint("DistanceY", 1, 1, 1, 2, 11.8))
sketch1.addConstraint(Sketcher.Constraint("DistanceY", 29, 1, 29, 2, 5.2))
sketch1.addConstraint(Sketcher.Constraint("DistanceY", 33, 1, 33, 2, 6.8))
sketch1.addConstraint(Sketcher.Constraint("DistanceX", -1, 1, 69, 3, 80.0))
sketch1.addConstraint(Sketcher.Constraint("DistanceX", 71, 3, -1, 1, 57.0))
sketch1.addConstraint(Sketcher.Constraint("DistanceY", 83, 3, -1, 1, 26.0))
sketch1.addConstraint(Sketcher.Constraint("DistanceY", 0, 2, -1, 1, 31.0))
sketch1.addConstraint(Sketcher.Constraint("DistanceY", 69, 3, -1, 1, 27.7))
sketch1.addConstraint(Sketcher.Constraint("DistanceX", -1, 1, 72, 3, 11.5))
sketch1.addConstraint(Sketcher.Constraint("DistanceY", -1, 1, 72, 3, 9.4))
sketch1.addConstraint(Sketcher.Constraint("DistanceX", -1, 1, 77, 3, 87.1))
sketch1.addConstraint(Sketcher.Constraint("DistanceX", -1, 1, 78, 3, 72.9))
sketch1.addConstraint(Sketcher.Constraint("DistanceX", 84, 3, -1, 1, 49.9))
sketch1.addConstraint(Sketcher.Constraint("DistanceX", 85, 3, -1, 1, 64.1))
sketch1.addConstraint(Sketcher.Constraint("DistanceX", -1, 1, 73, 2, 7.5))
sketch1.addConstraint(Sketcher.Constraint("DistanceY", 73, 2, -1, 1, 3.6))
sketch1.addConstraint(Sketcher.Constraint("DistanceY", 79, 2, -1, 1, 20.2))
sketch1.addConstraint(Sketcher.Constraint("DistanceY", 13, 1, 13, 2, 7.951376))
pad1 = body.newObject("PartDesign::Pad", "Pad")
pad1.Profile = sketch1
pad1.Length = 8.4
pad1.Reversed = True

doc.recompute()
